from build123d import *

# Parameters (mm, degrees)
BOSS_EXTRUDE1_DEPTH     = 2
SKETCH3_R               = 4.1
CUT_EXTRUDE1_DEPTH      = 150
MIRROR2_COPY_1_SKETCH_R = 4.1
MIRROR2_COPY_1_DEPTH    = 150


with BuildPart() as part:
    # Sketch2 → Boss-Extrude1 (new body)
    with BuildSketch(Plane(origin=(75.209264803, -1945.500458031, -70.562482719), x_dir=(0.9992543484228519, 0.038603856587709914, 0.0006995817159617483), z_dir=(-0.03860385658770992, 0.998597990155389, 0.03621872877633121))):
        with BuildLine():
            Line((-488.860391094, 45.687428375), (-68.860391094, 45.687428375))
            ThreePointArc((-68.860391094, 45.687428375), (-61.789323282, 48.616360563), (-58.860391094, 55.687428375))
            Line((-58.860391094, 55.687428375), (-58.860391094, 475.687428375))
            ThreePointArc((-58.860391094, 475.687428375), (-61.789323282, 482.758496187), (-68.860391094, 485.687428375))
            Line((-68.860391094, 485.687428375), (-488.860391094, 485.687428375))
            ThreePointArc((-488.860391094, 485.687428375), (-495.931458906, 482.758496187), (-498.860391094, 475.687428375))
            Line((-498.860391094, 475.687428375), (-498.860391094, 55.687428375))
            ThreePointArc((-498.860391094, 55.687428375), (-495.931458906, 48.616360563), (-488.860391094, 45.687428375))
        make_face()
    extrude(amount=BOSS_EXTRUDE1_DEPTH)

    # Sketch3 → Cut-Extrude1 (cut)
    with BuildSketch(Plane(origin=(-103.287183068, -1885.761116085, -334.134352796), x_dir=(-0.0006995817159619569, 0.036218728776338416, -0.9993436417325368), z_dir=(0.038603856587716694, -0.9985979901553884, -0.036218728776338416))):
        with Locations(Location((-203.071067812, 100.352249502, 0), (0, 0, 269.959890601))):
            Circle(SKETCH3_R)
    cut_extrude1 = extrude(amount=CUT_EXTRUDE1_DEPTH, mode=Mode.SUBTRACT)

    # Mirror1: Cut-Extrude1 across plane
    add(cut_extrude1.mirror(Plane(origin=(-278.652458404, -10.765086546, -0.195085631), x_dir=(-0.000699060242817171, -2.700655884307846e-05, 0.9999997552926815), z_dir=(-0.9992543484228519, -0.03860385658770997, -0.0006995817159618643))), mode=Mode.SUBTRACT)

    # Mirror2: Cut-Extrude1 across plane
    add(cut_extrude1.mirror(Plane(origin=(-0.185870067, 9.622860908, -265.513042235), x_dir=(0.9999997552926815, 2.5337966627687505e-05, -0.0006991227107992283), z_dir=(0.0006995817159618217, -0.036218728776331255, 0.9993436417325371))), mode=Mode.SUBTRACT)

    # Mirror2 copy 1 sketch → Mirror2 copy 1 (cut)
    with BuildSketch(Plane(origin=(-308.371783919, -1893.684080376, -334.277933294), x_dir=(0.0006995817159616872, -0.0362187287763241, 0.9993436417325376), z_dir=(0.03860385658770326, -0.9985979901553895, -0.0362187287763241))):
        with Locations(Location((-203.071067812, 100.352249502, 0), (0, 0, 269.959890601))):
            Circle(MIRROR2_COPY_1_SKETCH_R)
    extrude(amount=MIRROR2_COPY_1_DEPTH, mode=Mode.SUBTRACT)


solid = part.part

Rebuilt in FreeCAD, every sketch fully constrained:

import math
import FreeCAD as App
import Part
import Sketcher

V = App.Vector

doc = App.newDocument("Part")
body = doc.addObject("PartDesign::Body", "Body")

# Sketch on an angled plane
sketch1 = body.newObject("Sketcher::SketchObject", "Sketch")
sketch1.Placement = App.Placement(V(75.209265, -1945.500458, -70.562483), App.Rotation(V(0.999254348, 0.038603857, 0.000699582), V(-0.000699581, 0.036218729, -0.999343641), V(-0.038603857, 0.99859799, 0.036218729), "ZXY"))
sketch1.addGeometry(Part.LineSegment(V(-489, 46, 0), V(-69, 46, 0)), False)
sketch1.addGeometry(Part.ArcOfCircle(Part.Circle(V(-69, 56, 0), V(0, 0, 1), 10), math.radians(-90), math.radians(0)), False)
sketch1.addGeometry(Part.LineSegment(V(-59, 56, 0), V(-59, 476, 0)), False)
sketch1.addGeometry(Part.ArcOfCircle(Part.Circle(V(-69, 476, 0), V(0, 0, 1), 10), math.radians(0), math.radians(90)), False)
sketch1.addGeometry(Part.LineSegment(V(-69, 486, 0), V(-489, 486, 0)), False)
sketch1.addGeometry(Part.ArcOfCircle(Part.Circle(V(-489, 476, 0), V(0, 0, 1), 10), math.radians(90), math.radians(180)), False)
sketch1.addGeometry(Part.LineSegment(V(-499, 476, 0), V(-499, 56, 0)), False)
sketch1.addGeometry(Part.ArcOfCircle(Part.Circle(V(-489, 56, 0), V(0, 0, 1), 10), math.radians(180), math.radians(270)), False)
sketch1.addConstraint(Sketcher.Constraint("Tangent", 0, 2, 1, 1))
sketch1.addConstraint(Sketcher.Constraint("Tangent", 1, 2, 2, 1))
sketch1.addConstraint(Sketcher.Constraint("Tangent", 2, 2, 3, 1))
sketch1.addConstraint(Sketcher.Constraint("Tangent", 3, 2, 4, 1))
sketch1.addConstraint(Sketcher.Constraint("Tangent", 4, 2, 5, 1))
sketch1.addConstraint(Sketcher.Constraint("Tangent", 5, 2, 6, 1))
sketch1.addConstraint(Sketcher.Constraint("Tangent", 6, 2, 7, 1))
sketch1.addConstraint(Sketcher.Constraint("Tangent", 7, 2, 0, 1))
sketch1.addConstraint(Sketcher.Constraint("Horizontal", 0))
sketch1.addConstraint(Sketcher.Constraint("Vertical", 2))
sketch1.addConstraint(Sketcher.Constraint("Horizontal", 4))
sketch1.addConstraint(Sketcher.Constraint("Vertical", 6))
sketch1.addConstraint(Sketcher.Constraint("Equal", 1, 3))
sketch1.addConstraint(Sketcher.Constraint("Equal", 3, 5))
sketch1.addConstraint(Sketcher.Constraint("Equal", 5, 7))
sketch1.addConstraint(Sketcher.Constraint("Equal", 4, 2))
sketch1.addConstraint(Sketcher.Constraint("Radius", 1, 10.0))
sketch1.addConstraint(Sketcher.Constraint("DistanceX", 0, 1, 0, 2, 420.0))
sketch1.addConstraint(Sketcher.Constraint("DistanceX", 1, 3, -1, 1, 68.860391))
sketch1.addConstraint(Sketcher.Constraint("DistanceY", -1, 1, 1, 3, 55.687428))
pad1 = body.newObject("PartDesign::Pad", "Pad")
pad1.Profile = sketch1
pad1.Length = 2

# Sketch on an angled plane
sketch2 = body.newObject("Sketcher::SketchObject", "Sketch001")
sketch2.Placement = App.Placement(V(-103.287183, -1885.761116, -334.134353), App.Rotation(V(-0.000699582, 0.036218729, -0.999343642), V(0.999254349, 0.038603857, 0.000699581), V(0.038603857, -0.99859799, -0.036218729), "ZXY"))
sketch2.addGeometry(Part.Circle(V(-203.1, 100.4, 0), V(0, 0, 1), 4.1), False)
sketch2.addConstraint(Sketcher.Constraint("Diameter", 0, 8.2))
sketch2.addConstraint(Sketcher.Constraint("DistanceY", -1, 1, 0, 3, 100.35225))
sketch2.addConstraint(Sketcher.Constraint("DistanceX", 0, 3, -1, 1, 203.071068))
pocket1 = body.newObject("PartDesign::Pocket", "Pocket")
pocket1.Profile = sketch2
pocket1.Length = 150
pocket1.Reversed = True
doc.recompute()

datumplane = body.newObject("PartDesign::Plane", "DatumPlane")
datumplane.Placement = App.Placement(V(-278.652458, -10.765087, -0.195086), App.Rotation(V(-0.038603866, 0.999254593, 0), V(0.000699061, 0.000027007, -0.999999755), V(-0.999254348, -0.038603857, -0.000699582), "ZXY"))
mirrored = body.newObject("PartDesign::Mirrored", "Mirrored")
mirrored.Originals = [pocket1]
mirrored.MirrorPlane = (datumplane, [""])
body.Tip = mirrored
doc.recompute()

datumplane2 = body.newObject("PartDesign::Plane", "DatumPlane001")
datumplane2.Placement = App.Placement(V(-0.18587, 9.622861, -265.513042), App.Rotation(V(0, 0.999343886, 0.036218738), V(-0.999999756, -0.000025338, 0.000699123), V(0.000699582, -0.036218729, 0.999343642), "ZXY"))
mirrored2 = body.newObject("PartDesign::Mirrored", "Mirrored001")
mirrored2.Originals = [pocket1]
mirrored2.MirrorPlane = (datumplane2, [""])
body.Tip = mirrored2

# Sketch on an angled plane
sketch3 = body.newObject("Sketcher::SketchObject", "Sketch002")
sketch3.Placement = App.Placement(V(-308.371784, -1893.68408, -334.277933), App.Rotation(V(0.000699582, -0.036218729, 0.999343642), V(-0.999254349, -0.038603857, -0.000699581), V(0.038603857, -0.99859799, -0.036218729), "ZXY"))
sketch3.addGeometry(Part.Circle(V(-203.1, 100.4, 0), V(0, 0, 1), 4.1), False)
sketch3.addConstraint(Sketcher.Constraint("Diameter", 0, 8.2))
sketch3.addConstraint(Sketcher.Constraint("DistanceY", -1, 1, 0, 3, 100.35225))
sketch3.addConstraint(Sketcher.Constraint("DistanceX", 0, 3, -1, 1, 203.071068))
pocket2 = body.newObject("PartDesign::Pocket", "Pocket001")
pocket2.Profile = sketch3
pocket2.Length = 150
pocket2.Reversed = True

doc.recompute()
